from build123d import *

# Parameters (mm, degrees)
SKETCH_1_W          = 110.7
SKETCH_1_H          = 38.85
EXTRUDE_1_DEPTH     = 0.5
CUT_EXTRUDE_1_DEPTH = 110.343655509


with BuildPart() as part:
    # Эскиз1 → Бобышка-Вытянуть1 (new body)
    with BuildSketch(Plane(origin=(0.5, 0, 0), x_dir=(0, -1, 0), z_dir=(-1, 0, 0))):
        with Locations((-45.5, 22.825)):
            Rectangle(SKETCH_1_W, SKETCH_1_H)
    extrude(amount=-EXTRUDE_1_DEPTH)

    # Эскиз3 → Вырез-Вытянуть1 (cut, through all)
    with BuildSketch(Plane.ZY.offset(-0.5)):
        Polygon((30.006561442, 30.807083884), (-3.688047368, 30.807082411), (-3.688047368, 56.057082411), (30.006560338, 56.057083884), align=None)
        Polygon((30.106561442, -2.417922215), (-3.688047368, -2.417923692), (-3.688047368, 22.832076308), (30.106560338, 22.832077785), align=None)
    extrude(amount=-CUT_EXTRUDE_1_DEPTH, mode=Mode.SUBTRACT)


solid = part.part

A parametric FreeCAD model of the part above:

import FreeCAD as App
import Part
import Sketcher

V = App.Vector
Q = App.Units.Quantity

doc = App.newDocument("Part")
body = doc.addObject("PartDesign::Body", "Body")

# Sketch on YZ plane
sketch1 = body.newObject("Sketcher::SketchObject", "Sketch")
sketch1.AttachmentSupport = (doc.getObject("YZ_Plane"), [""])
sketch1.MapMode = "FlatFace"
sketch1.AttachmentOffset = App.Placement(V(0, 0, 0.5), App.Rotation())
sketch1.addGeometry(Part.LineSegment(V(100.85, 42.25, 0), V(100.85, 3.4, 0)), False)
sketch1.addGeometry(Part.LineSegment(V(100.85, 3.4, 0), V(-9.85, 3.4, 0)), False)
sketch1.addGeometry(Part.LineSegment(V(-9.85, 3.4, 0), V(-9.85, 42.25, 0)), False)
sketch1.addGeometry(Part.LineSegment(V(-9.85, 42.25, 0), V(100.85, 42.25, 0)), False)
sketch1.addConstraint(Sketcher.Constraint("Coincident", 0, 2, 1, 1))
sketch1.addConstraint(Sketcher.Constraint("Coincident", 1, 2, 2, 1))
sketch1.addConstraint(Sketcher.Constraint("Coincident", 2, 2, 3, 1))
sketch1.addConstraint(Sketcher.Constraint("Coincident", 3, 2, 0, 1))
sketch1.addConstraint(Sketcher.Constraint("Vertical", 0))
sketch1.addConstraint(Sketcher.Constraint("Horizontal", 1))
sketch1.addConstraint(Sketcher.Constraint("Vertical", 2))
sketch1.addConstraint(Sketcher.Constraint("Horizontal", 3))
sketch1.addConstraint(Sketcher.Constraint("DistanceX", 1, 2, 1, 1, Q("110.7 mm")))
sketch1.addConstraint(Sketcher.Constraint("DistanceY", 0, 2, 0, 1, Q("38.85 mm")))
sketch1.addConstraint(Sketcher.Constraint("DistanceY", -1, 1, 0, 2, Q("3.4 mm")))
sketch1.addConstraint(Sketcher.Constraint("DistanceX", -1, 1, 0, 2, Q("100.85 mm")))
pad1 = body.newObject("PartDesign::Pad", "Pad")
pad1.Profile = sketch1
pad1.Length = 0.5

# Sketch on YZ plane
sketch2 = body.newObject("Sketcher::SketchObject", "Sketch001")
sketch2.AttachmentSupport = (doc.getObject("YZ_Plane"), [""])
sketch2.MapMode = "FlatFace"
sketch2.AttachmentOffset = App.Placement(V(0, 0, 0.5), App.Rotation())
sketch2.addGeometry(Part.LineSegment(V(30.807082, -3.688047, 0), V(30.807084, 30.006561, 0)), False)
sketch2.addGeometry(Part.LineSegment(V(30.807084, 30.006561, 0), V(56.057084, 30.00656, 0)), False)
sketch2.addGeometry(Part.LineSegment(V(56.057084, 30.00656, 0), V(56.057082, -3.688047, 0)), False)
sketch2.addGeometry(Part.LineSegment(V(56.057082, -3.688047, 0), V(30.807082, -3.688047, 0)), False)
sketch2.addGeometry(Part.LineSegment(V(-2.417924, -3.688047, 0), V(-2.417922, 30.106561, 0)), False)
sketch2.addGeometry(Part.LineSegment(V(-2.417922, 30.106561, 0), V(22.832078, 30.10656, 0)), False)
sketch2.addGeometry(Part.LineSegment(V(22.832078, 30.10656, 0), V(22.832076, -3.688047, 0)), False)
sketch2.addGeometry(Part.LineSegment(V(22.832076, -3.688047, 0), V(-2.417924, -3.688047, 0)), False)
sketch2.addConstraint(Sketcher.Constraint("Coincident", 0, 2, 1, 1))
sketch2.addConstraint(Sketcher.Constraint("Coincident", 1, 2, 2, 1))
sketch2.addConstraint(Sketcher.Constraint("Coincident", 2, 2, 3, 1))
sketch2.addConstraint(Sketcher.Constraint("Coincident", 3, 2, 0, 1))
sketch2.addConstraint(Sketcher.Constraint("Coincident", 4, 2, 5, 1))
sketch2.addConstraint(Sketcher.Constraint("Coincident", 5, 2, 6, 1))
sketch2.addConstraint(Sketcher.Constraint("Coincident", 6, 2, 7, 1))
sketch2.addConstraint(Sketcher.Constraint("Coincident", 7, 2, 4, 1))
sketch2.addConstraint(Sketcher.Constraint("Vertical", 0))
sketch2.addConstraint(Sketcher.Constraint("Horizontal", 1))
sketch2.addConstraint(Sketcher.Constraint("Vertical", 2))
sketch2.addConstraint(Sketcher.Constraint("Horizontal", 3))
sketch2.addConstraint(Sketcher.Constraint("Vertical", 4))
sketch2.addConstraint(Sketcher.Constraint("Horizontal", 5))
sketch2.addConstraint(Sketcher.Constraint("Vertical", 6))
sketch2.addConstraint(Sketcher.Constraint("Horizontal", 7))
sketch2.addConstraint(Sketcher.Constraint("Horizontal", 3, 2, 6, 2))
sketch2.addConstraint(Sketcher.Constraint("Equal", 3, 5))
sketch2.addConstraint(Sketcher.Constraint("DistanceX", 1, 1, 1, 2, Q("25.25 mm")))
sketch2.addConstraint(Sketcher.Constraint("DistanceY", 0, 2, 4, 2, Q("0.1 mm")))
sketch2.addConstraint(Sketcher.Constraint("DistanceY", 0, 1, 0, 2, Q("33.694609 mm")))
sketch2.addConstraint(Sketcher.Constraint("DistanceY", -1, 1, 0, 2, Q("30.006561 mm")))
sketch2.addConstraint(Sketcher.Constraint("DistanceX", -1, 1, 0, 2, Q("30.807084 mm")))
sketch2.addConstraint(Sketcher.Constraint("DistanceX", 4, 2, -1, 1, Q("2.417922 mm")))
pocket1 = body.newObject("PartDesign::Pocket", "Pocket")
pocket1.Profile = sketch2
pocket1.Type = "ThroughAll"
pocket1.Reversed = True

doc.recompute()
